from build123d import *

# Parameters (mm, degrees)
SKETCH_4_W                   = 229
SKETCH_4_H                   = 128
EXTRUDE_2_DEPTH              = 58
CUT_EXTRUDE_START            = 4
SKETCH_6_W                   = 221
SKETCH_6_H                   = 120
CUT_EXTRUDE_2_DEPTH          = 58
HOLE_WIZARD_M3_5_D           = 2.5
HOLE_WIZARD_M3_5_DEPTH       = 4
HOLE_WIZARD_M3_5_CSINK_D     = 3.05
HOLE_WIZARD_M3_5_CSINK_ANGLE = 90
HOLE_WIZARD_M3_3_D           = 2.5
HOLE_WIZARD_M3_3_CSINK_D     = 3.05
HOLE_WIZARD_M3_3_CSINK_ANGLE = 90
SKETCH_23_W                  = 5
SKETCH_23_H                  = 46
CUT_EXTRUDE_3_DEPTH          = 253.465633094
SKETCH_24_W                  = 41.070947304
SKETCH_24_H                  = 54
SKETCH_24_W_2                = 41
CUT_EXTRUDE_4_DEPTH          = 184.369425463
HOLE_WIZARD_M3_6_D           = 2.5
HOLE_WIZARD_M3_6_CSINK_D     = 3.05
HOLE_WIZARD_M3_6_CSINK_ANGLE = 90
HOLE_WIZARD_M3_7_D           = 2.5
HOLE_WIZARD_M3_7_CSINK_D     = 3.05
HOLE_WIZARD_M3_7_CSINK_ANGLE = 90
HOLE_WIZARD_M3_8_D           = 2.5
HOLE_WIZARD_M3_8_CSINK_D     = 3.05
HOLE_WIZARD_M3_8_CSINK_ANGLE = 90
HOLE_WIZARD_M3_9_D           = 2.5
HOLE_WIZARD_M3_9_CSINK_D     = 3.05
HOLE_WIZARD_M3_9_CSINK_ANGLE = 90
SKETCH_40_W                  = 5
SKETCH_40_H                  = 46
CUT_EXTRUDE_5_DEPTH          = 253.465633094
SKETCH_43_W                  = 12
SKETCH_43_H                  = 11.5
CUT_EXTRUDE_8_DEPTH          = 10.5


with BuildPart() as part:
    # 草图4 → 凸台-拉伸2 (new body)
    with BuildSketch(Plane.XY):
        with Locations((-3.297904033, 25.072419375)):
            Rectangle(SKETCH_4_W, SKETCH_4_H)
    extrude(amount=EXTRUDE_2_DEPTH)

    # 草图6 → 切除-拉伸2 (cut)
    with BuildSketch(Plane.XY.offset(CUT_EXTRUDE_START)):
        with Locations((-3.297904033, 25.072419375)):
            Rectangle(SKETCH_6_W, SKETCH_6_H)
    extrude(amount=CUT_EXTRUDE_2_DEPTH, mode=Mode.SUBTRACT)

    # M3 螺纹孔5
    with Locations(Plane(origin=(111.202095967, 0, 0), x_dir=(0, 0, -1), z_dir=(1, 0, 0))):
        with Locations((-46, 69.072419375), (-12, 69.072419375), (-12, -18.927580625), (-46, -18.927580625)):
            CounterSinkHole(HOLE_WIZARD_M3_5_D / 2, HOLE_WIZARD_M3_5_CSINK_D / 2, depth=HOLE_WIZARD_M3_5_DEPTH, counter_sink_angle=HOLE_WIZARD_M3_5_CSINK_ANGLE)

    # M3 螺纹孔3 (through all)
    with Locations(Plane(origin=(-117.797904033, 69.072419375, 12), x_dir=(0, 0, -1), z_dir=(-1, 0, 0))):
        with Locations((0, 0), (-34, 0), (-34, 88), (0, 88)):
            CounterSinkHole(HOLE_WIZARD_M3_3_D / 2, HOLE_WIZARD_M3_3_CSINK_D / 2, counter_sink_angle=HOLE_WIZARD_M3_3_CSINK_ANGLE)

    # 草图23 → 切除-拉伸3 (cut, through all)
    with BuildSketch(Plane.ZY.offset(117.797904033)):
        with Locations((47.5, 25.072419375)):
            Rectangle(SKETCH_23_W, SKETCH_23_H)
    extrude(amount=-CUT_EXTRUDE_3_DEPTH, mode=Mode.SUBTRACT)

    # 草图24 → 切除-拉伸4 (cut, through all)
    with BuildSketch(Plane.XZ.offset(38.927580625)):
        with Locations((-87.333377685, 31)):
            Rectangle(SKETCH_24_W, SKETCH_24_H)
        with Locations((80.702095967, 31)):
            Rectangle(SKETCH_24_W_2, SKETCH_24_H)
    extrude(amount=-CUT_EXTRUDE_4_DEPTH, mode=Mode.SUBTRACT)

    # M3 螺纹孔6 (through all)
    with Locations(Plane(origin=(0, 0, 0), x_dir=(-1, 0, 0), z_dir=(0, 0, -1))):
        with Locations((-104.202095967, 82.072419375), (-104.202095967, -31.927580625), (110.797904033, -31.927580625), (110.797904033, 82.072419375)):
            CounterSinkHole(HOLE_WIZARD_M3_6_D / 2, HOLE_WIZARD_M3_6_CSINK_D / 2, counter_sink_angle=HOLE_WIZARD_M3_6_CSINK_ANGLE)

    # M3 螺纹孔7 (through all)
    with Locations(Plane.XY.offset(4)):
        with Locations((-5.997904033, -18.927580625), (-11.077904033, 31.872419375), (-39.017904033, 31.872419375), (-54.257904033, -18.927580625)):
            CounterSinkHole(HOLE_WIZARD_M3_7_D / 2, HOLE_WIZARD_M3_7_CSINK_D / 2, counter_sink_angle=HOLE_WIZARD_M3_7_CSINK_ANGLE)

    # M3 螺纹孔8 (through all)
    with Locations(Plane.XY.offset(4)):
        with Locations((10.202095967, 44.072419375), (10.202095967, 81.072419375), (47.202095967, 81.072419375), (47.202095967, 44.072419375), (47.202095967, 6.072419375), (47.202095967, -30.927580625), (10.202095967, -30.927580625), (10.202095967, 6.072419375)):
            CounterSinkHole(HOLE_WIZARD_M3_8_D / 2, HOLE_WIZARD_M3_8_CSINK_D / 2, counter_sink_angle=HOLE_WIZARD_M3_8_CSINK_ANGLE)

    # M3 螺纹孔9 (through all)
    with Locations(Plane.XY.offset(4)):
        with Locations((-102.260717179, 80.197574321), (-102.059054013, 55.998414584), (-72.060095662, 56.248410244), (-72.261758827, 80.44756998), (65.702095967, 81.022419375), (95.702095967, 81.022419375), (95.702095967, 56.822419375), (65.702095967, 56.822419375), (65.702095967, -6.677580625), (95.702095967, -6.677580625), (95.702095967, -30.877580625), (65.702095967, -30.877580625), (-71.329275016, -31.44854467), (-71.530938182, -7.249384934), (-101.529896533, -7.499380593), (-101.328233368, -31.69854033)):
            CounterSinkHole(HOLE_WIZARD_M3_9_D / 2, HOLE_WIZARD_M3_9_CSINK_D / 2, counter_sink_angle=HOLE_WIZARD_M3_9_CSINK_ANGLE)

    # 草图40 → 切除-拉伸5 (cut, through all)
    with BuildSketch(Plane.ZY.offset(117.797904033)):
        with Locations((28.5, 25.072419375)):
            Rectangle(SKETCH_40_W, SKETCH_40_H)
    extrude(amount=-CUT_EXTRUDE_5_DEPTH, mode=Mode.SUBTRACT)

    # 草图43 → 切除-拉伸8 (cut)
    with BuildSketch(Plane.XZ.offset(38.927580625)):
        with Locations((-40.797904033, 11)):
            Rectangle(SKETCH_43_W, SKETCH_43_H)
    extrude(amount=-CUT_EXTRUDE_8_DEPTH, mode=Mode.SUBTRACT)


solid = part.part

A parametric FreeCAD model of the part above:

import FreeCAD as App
import Part
import Sketcher

V = App.Vector


def add_polygon(sketch, points):
    """Adds a closed chain of lines whose ends are joined by coincident constraints."""
    first, n = sketch.GeometryCount, len(points)
    for a, b in zip(points, points[1:] + points[:1]):
        sketch.addGeometry(Part.LineSegment(App.Vector(*a, 0), App.Vector(*b, 0)), False)
    for i in range(n):
        sketch.addConstraint(Sketcher.Constraint("Coincident", first + i, 2, first + (i + 1) % n, 1))

doc = App.newDocument("Part")
body = doc.addObject("PartDesign::Body", "Body")

# Sketch on XY plane
sketch1 = doc.addObject("Sketcher::SketchObject", "Sketch")
body.addObject(sketch1)
sketch1.AttachmentSupport = (doc.XY_Plane, [""])
sketch1.MapMode = "FlatFace"
add_polygon(sketch1, [(-117.797904, 89.072419), (-117.797904, -38.927581), (111.202096, -38.927581), (111.202096, 89.072419)])  # lines 0-3
sketch1.addConstraint([
    Sketcher.Constraint("Vertical", 0),
    Sketcher.Constraint("Horizontal", 1),
    Sketcher.Constraint("Vertical", 2),
    Sketcher.Constraint("Horizontal", 3),
    Sketcher.Constraint("DistanceX", 1, 1, 1, 2, 229.0),
    Sketcher.Constraint("DistanceY", 0, 2, 0, 1, 128.0),
    Sketcher.Constraint("DistanceY", 0, 2, -1, 1, 38.927581),
    Sketcher.Constraint("DistanceX", 0, 2, -1, 1, 117.797904),
])
pad1 = doc.addObject("PartDesign::Pad", "Pad")
body.addObject(pad1)
pad1.Profile = sketch1
pad1.Length = 58

# Sketch on XY plane
sketch2 = doc.addObject("Sketcher::SketchObject", "Sketch001")
body.addObject(sketch2)
sketch2.AttachmentSupport = (doc.XY_Plane, [""])
sketch2.MapMode = "FlatFace"
sketch2.AttachmentOffset = App.Placement(V(0, 0, 4), App.Rotation())
add_polygon(sketch2, [(-113.797904, 85.072419), (-113.797904, -34.927581), (107.202096, -34.927581), (107.202096, 85.072419)])  # lines 0-3
sketch2.addConstraint([
    Sketcher.Constraint("Vertical", 0),
    Sketcher.Constraint("Horizontal", 1),
    Sketcher.Constraint("Vertical", 2),
    Sketcher.Constraint("Horizontal", 3),
    Sketcher.Constraint("DistanceX", 1, 1, 1, 2, 221.0),
    Sketcher.Constraint("DistanceY", 0, 2, 0, 1, 120.0),
    Sketcher.Constraint("DistanceY", 0, 2, -1, 1, 34.927581),
    Sketcher.Constraint("DistanceX", 0, 2, -1, 1, 113.797904),
])
pocket1 = doc.addObject("PartDesign::Pocket", "Pocket")
body.addObject(pocket1)
pocket1.Profile = sketch2
pocket1.Length = 58
pocket1.Reversed = True

# Sketch on YZ plane
sketch3 = doc.addObject("Sketcher::SketchObject", "Sketch002")
body.addObject(sketch3)
sketch3.AttachmentSupport = (doc.YZ_Plane, [""])
sketch3.MapMode = "FlatFace"
sketch3.AttachmentOffset = App.Placement(V(0, 0, 111.202096), App.Rotation())
sketch3.addGeometry([
    Part.Circle(V(69.072419, 46, 0), V(0, 0, 1), 1.25),
    Part.Circle(V(69.072419, 12, 0), V(0, 0, 1), 1.25),
    Part.Circle(V(-18.927581, 12, 0), V(0, 0, 1), 1.25),
    Part.Circle(V(-18.927581, 46, 0), V(0, 0, 1), 1.25),
], False)
sketch3.addConstraint([
    Sketcher.Constraint("Equal", 0, 1),
    Sketcher.Constraint("Equal", 1, 2),
    Sketcher.Constraint("Equal", 2, 3),
    Sketcher.Constraint("Horizontal", 1, 3, 2, 3),
    Sketcher.Constraint("Horizontal", 0, 3, 3, 3),
    Sketcher.Constraint("Vertical", 0, 3, 1, 3),
    Sketcher.Constraint("Vertical", 2, 3, 3, 3),
    Sketcher.Constraint("Diameter", 0, 2.5),
    Sketcher.Constraint("DistanceY", -1, 1, 0, 3, 46.0),
    Sketcher.Constraint("DistanceY", -1, 1, 1, 3, 12.0),
    Sketcher.Constraint("DistanceX", 2, 3, 1, 3, 88.0),
    Sketcher.Constraint("DistanceX", -1, 1, 0, 3, 69.072419),
])
doc.recompute()
hole = doc.addObject("PartDesign::Hole", "Hole")
body.addObject(hole)
hole.Profile = sketch3
hole.ThreadType = "None"
hole.Diameter = 2.5
hole.DepthType = "Dimension"
hole.Depth = 4
hole.DrillPoint = "Flat"
hole.HoleCutType = "Countersink"
hole.HoleCutDiameter = 3.05
hole.HoleCutCountersinkAngle = 90

# Sketch on YZ plane
sketch4 = doc.addObject("Sketcher::SketchObject", "Sketch003")
body.addObject(sketch4)
sketch4.AttachmentSupport = (doc.YZ_Plane, [""])
sketch4.MapMode = "FlatFace"
sketch4.AttachmentOffset = App.Placement(V(0, 0, -117.797904), App.Rotation())
sketch4.addGeometry([
    Part.Circle(V(69.072419, 12, 0), V(0, 0, 1), 1.25),
    Part.Circle(V(69.072419, 46, 0), V(0, 0, 1), 1.25),
    Part.Circle(V(-18.927581, 46, 0), V(0, 0, 1), 1.25),
    Part.Circle(V(-18.927581, 12, 0), V(0, 0, 1), 1.25),
], False)
sketch4.addConstraint([
    Sketcher.Constraint("Equal", 0, 1),
    Sketcher.Constraint("Equal", 1, 2),
    Sketcher.Constraint("Equal", 2, 3),
    Sketcher.Constraint("Horizontal", 1, 3, 2, 3),
    Sketcher.Constraint("Horizontal", 0, 3, 3, 3),
    Sketcher.Constraint("Vertical", 0, 3, 1, 3),
    Sketcher.Constraint("Vertical", 2, 3, 3, 3),
    Sketcher.Constraint("Diameter", 0, 2.5),
    Sketcher.Constraint("DistanceY", -1, 1, 0, 3, 12.0),
    Sketcher.Constraint("DistanceY", -1, 1, 1, 3, 46.0),
    Sketcher.Constraint("DistanceX", 2, 3, 1, 3, 88.0),
    Sketcher.Constraint("DistanceX", -1, 1, 0, 3, 69.072419),
])
doc.recompute()
hole2 = doc.addObject("PartDesign::Hole", "Hole001")
body.addObject(hole2)
hole2.Profile = sketch4
hole2.ThreadType = "None"
hole2.Diameter = 2.5
hole2.DepthType = "ThroughAll"
hole2.HoleCutType = "Countersink"
hole2.HoleCutDiameter = 3.05
hole2.HoleCutCountersinkAngle = 90
hole2.Reversed = True

# Sketch on YZ plane
sketch5 = doc.addObject("Sketcher::SketchObject", "Sketch004")
body.addObject(sketch5)
sketch5.AttachmentSupport = (doc.YZ_Plane, [""])
sketch5.MapMode = "FlatFace"
sketch5.AttachmentOffset = App.Placement(V(0, 0, -117.797904), App.Rotation())
add_polygon(sketch5, [(48.072419, 45), (2.072419, 45), (2.072419, 50), (48.072419, 50)])  # lines 0-3
sketch5.addConstraint([
    Sketcher.Constraint("Horizontal", 0),
    Sketcher.Constraint("Vertical", 1),
    Sketcher.Constraint("Horizontal", 2),
    Sketcher.Constraint("Vertical", 3),
    Sketcher.Constraint("DistanceX", 0, 2, 0, 1, 46.0),
    Sketcher.Constraint("DistanceY", 1, 1, 1, 2, 5.0),
    Sketcher.Constraint("DistanceY", -1, 1, 0, 2, 45.0),
    Sketcher.Constraint("DistanceX", -1, 1, 0, 2, 2.072419),
])
pocket2 = doc.addObject("PartDesign::Pocket", "Pocket001")
body.addObject(pocket2)
pocket2.Profile = sketch5
pocket2.Type = "ThroughAll"
pocket2.Reversed = True

# Sketch on XZ plane
sketch6 = doc.addObject("Sketcher::SketchObject", "Sketch005")
body.addObject(sketch6)
sketch6.AttachmentSupport = (doc.XZ_Plane, [""])
sketch6.MapMode = "FlatFace"
sketch6.AttachmentOffset = App.Placement(V(0, 0, 38.927581), App.Rotation())
add_polygon(sketch6, [(-107.868851, 58), (-107.868851, 4), (-66.797904, 4), (-66.797904, 58)])  # lines 0-3
add_polygon(sketch6, [(60.202096, 58), (60.202096, 4), (101.202096, 4), (101.202096, 58)])  # lines 4-7
sketch6.addConstraint([
    Sketcher.Constraint("Vertical", 0),
    Sketcher.Constraint("Horizontal", 1),
    Sketcher.Constraint("Vertical", 2),
    Sketcher.Constraint("Horizontal", 3),
    Sketcher.Constraint("Vertical", 4),
    Sketcher.Constraint("Horizontal", 5),
    Sketcher.Constraint("Vertical", 6),
    Sketcher.Constraint("Horizontal", 7),
    Sketcher.Constraint("Horizontal", 1, 2, 4, 2),
    Sketcher.Constraint("Horizontal", 3, 2, 6, 2),
    Sketcher.Constraint("DistanceX", 5, 1, 5, 2, 41.0),
    Sketcher.Constraint("DistanceY", 0, 2, 0, 1, 54.0),
    Sketcher.Constraint("DistanceY", -1, 1, 0, 2, 4.0),
    Sketcher.Constraint("DistanceX", 1, 2, 4, 2, 127.0),
    Sketcher.Constraint("DistanceX", 1, 1, 1, 2, 41.070947),
    Sketcher.Constraint("DistanceX", 0, 2, -1, 1, 107.868851),
])
pocket3 = doc.addObject("PartDesign::Pocket", "Pocket002")
body.addObject(pocket3)
pocket3.Profile = sketch6
pocket3.Type = "ThroughAll"

# Sketch on XY plane
sketch7 = doc.addObject("Sketcher::SketchObject", "Sketch006")
body.addObject(sketch7)
sketch7.AttachmentSupport = (doc.XY_Plane, [""])
sketch7.MapMode = "FlatFace"
sketch7.addGeometry([
    Part.Circle(V(104.202096, 82.072419, 0), V(0, 0, 1), 1.25),
    Part.Circle(V(104.202096, -31.927581, 0), V(0, 0, 1), 1.25),
    Part.Circle(V(-110.797904, -31.927581, 0), V(0, 0, 1), 1.25),
    Part.Circle(V(-110.797904, 82.072419, 0), V(0, 0, 1), 1.25),
], False)
sketch7.addConstraint([
    Sketcher.Constraint("Equal", 0, 1),
    Sketcher.Constraint("Equal", 1, 2),
    Sketcher.Constraint("Equal", 2, 3),
    Sketcher.Constraint("Horizontal", 1, 3, 2, 3),
    Sketcher.Constraint("Horizontal", 0, 3, 3, 3),
    Sketcher.Constraint("Vertical", 0, 3, 1, 3),
    Sketcher.Constraint("Vertical", 2, 3, 3, 3),
    Sketcher.Constraint("Diameter", 0, 2.5),
    Sketcher.Constraint("DistanceY", 1, 3, 0, 3, 114.0),
    Sketcher.Constraint("DistanceX", 2, 3, 1, 3, 215.0),
    Sketcher.Constraint("DistanceY", -1, 1, 0, 3, 82.072419),
    Sketcher.Constraint("DistanceX", -1, 1, 0, 3, 104.202096),
])
doc.recompute()
hole3 = doc.addObject("PartDesign::Hole", "Hole002")
body.addObject(hole3)
hole3.Profile = sketch7
hole3.ThreadType = "None"
hole3.Diameter = 2.5
hole3.DepthType = "ThroughAll"
hole3.HoleCutType = "Countersink"
hole3.HoleCutDiameter = 3.05
hole3.HoleCutCountersinkAngle = 90
hole3.Reversed = True

# Sketch on XY plane
sketch8 = doc.addObject("Sketcher::SketchObject", "Sketch007")
body.addObject(sketch8)
sketch8.AttachmentSupport = (doc.XY_Plane, [""])
sketch8.MapMode = "FlatFace"
sketch8.AttachmentOffset = App.Placement(V(0, 0, 4), App.Rotation())
sketch8.addGeometry([
    Part.Circle(V(-5.997904, -18.927581, 0), V(0, 0, 1), 1.25),
    Part.Circle(V(-11.077904, 31.872419, 0), V(0, 0, 1), 1.25),
    Part.Circle(V(-39.017904, 31.872419, 0), V(0, 0, 1), 1.25),
    Part.Circle(V(-54.257904, -18.927581, 0), V(0, 0, 1), 1.25),
], False)
sketch8.addConstraint([
    Sketcher.Constraint("Equal", 0, 1),
    Sketcher.Constraint("Equal", 1, 2),
    Sketcher.Constraint("Equal", 2, 3),
    Sketcher.Constraint("Horizontal", 1, 3, 2, 3),
    Sketcher.Constraint("Horizontal", 0, 3, 3, 3),
    Sketcher.Constraint("Diameter", 0, 2.5),
    Sketcher.Constraint("DistanceY", 0, 3, 1, 3, 50.8),
    Sketcher.Constraint("DistanceX", 1, 3, 0, 3, 5.08),
    Sketcher.Constraint("DistanceX", 2, 3, 1, 3, 27.94),
    Sketcher.Constraint("DistanceX", 3, 3, 0, 3, 48.26),
    Sketcher.Constraint("DistanceY", 0, 3, -1, 1, 18.927581),
    Sketcher.Constraint("DistanceX", 0, 3, -1, 1, 5.997904),
])
doc.recompute()
hole4 = doc.addObject("PartDesign::Hole", "Hole003")
body.addObject(hole4)
hole4.Profile = sketch8
hole4.ThreadType = "None"
hole4.Diameter = 2.5
hole4.DepthType = "ThroughAll"
hole4.HoleCutType = "Countersink"
hole4.HoleCutDiameter = 3.05
hole4.HoleCutCountersinkAngle = 90

# Sketch on XY plane
sketch9 = doc.addObject("Sketcher::SketchObject", "Sketch008")
body.addObject(sketch9)
sketch9.AttachmentSupport = (doc.XY_Plane, [""])
sketch9.MapMode = "FlatFace"
sketch9.AttachmentOffset = App.Placement(V(0, 0, 4), App.Rotation())
sketch9.addGeometry([
    Part.Circle(V(10.202096, 44.072419, 0), V(0, 0, 1), 1.25),  # 0
    Part.Circle(V(10.202096, 81.072419, 0), V(0, 0, 1), 1.25),  # 1
    Part.Circle(V(47.202096, 81.072419, 0), V(0, 0, 1), 1.25),  # 2
    Part.Circle(V(47.202096, 44.072419, 0), V(0, 0, 1), 1.25),  # 3
    Part.Circle(V(47.202096, 6.072419, 0), V(0, 0, 1), 1.25),  # 4
    Part.Circle(V(47.202096, -30.927581, 0), V(0, 0, 1), 1.25),  # 5
    Part.Circle(V(10.202096, -30.927581, 0), V(0, 0, 1), 1.25),  # 6
    Part.Circle(V(10.202096, 6.072419, 0), V(0, 0, 1), 1.25),  # 7
], False)
sketch9.addConstraint([
    Sketcher.Constraint("Equal", 0, 1),
    Sketcher.Constraint("Equal", 1, 2),
    Sketcher.Constraint("Equal", 2, 3),
    Sketcher.Constraint("Equal", 3, 4),
    Sketcher.Constraint("Equal", 4, 5),
    Sketcher.Constraint("Equal", 5, 6),
    Sketcher.Constraint("Equal", 6, 7),
    Sketcher.Constraint("Horizontal", 1, 3, 2, 3),
    Sketcher.Constraint("Horizontal", 0, 3, 3, 3),
    Sketcher.Constraint("Horizontal", 5, 3, 6, 3),
    Sketcher.Constraint("Horizontal", 4, 3, 7, 3),
    Sketcher.Constraint("Vertical", 0, 3, 1, 3),
    Sketcher.Constraint("Vertical", 2, 3, 3, 3),
    Sketcher.Constraint("Vertical", 3, 3, 4, 3),
    Sketcher.Constraint("Vertical", 4, 3, 5, 3),
    Sketcher.Constraint("Vertical", 1, 3, 6, 3),
    Sketcher.Constraint("Vertical", 6, 3, 7, 3),
    Sketcher.Constraint("Diameter", 0, 2.5),
    Sketcher.Constraint("DistanceY", 0, 3, 1, 3, 37.0),
    Sketcher.Constraint("DistanceX", 1, 3, 2, 3, 37.0),
    Sketcher.Constraint("DistanceY", 4, 3, 3, 3, 38.0),
    Sketcher.Constraint("DistanceY", 5, 3, 4, 3, 37.0),
    Sketcher.Constraint("DistanceY", -1, 1, 0, 3, 44.072419),
    Sketcher.Constraint("DistanceX", -1, 1, 0, 3, 10.202096),
])
doc.recompute()
hole5 = doc.addObject("PartDesign::Hole", "Hole004")
body.addObject(hole5)
hole5.Profile = sketch9
hole5.ThreadType = "None"
hole5.Diameter = 2.5
hole5.DepthType = "ThroughAll"
hole5.HoleCutType = "Countersink"
hole5.HoleCutDiameter = 3.05
hole5.HoleCutCountersinkAngle = 90

# Sketch on XY plane
sketch10 = doc.addObject("Sketcher::SketchObject", "Sketch009")
body.addObject(sketch10)
sketch10.AttachmentSupport = (doc.XY_Plane, [""])
sketch10.MapMode = "FlatFace"
sketch10.AttachmentOffset = App.Placement(V(0, 0, 4), App.Rotation())
sketch10.addGeometry([
    Part.Circle(V(-102.260717, 80.197574, 0), V(0, 0, 1), 1.25),  # 0
    Part.Circle(V(-102.059054, 55.998415, 0), V(0, 0, 1), 1.25),  # 1
    Part.Circle(V(-72.060096, 56.24841, 0), V(0, 0, 1), 1.25),  # 2
    Part.Circle(V(-72.261759, 80.44757, 0), V(0, 0, 1), 1.25),  # 3
    Part.Circle(V(65.702096, 81.022419, 0), V(0, 0, 1), 1.25),  # 4
    Part.Circle(V(95.702096, 81.022419, 0), V(0, 0, 1), 1.25),  # 5
    Part.Circle(V(95.702096, 56.822419, 0), V(0, 0, 1), 1.25),  # 6
    Part.Circle(V(65.702096, 56.822419, 0), V(0, 0, 1), 1.25),  # 7
    Part.Circle(V(65.702096, -6.677581, 0), V(0, 0, 1), 1.25),  # 8
    Part.Circle(V(95.702096, -6.677581, 0), V(0, 0, 1), 1.25),  # 9
    Part.Circle(V(95.702096, -30.877581, 0), V(0, 0, 1), 1.25),  # 10
    Part.Circle(V(65.702096, -30.877581, 0), V(0, 0, 1), 1.25),  # 11
    Part.Circle(V(-71.329275, -31.448545, 0), V(0, 0, 1), 1.25),  # 12
    Part.Circle(V(-71.530938, -7.249385, 0), V(0, 0, 1), 1.25),  # 13
    Part.Circle(V(-101.529897, -7.499381, 0), V(0, 0, 1), 1.25),  # 14
    Part.Circle(V(-101.328233, -31.69854, 0), V(0, 0, 1), 1.25),  # 15
], False)
sketch10.addConstraint([
    Sketcher.Constraint("Equal", 0, 1),
    Sketcher.Constraint("Equal", 1, 2),
    Sketcher.Constraint("Equal", 2, 3),
    Sketcher.Constraint("Equal", 3, 4),
    Sketcher.Constraint("Equal", 4, 5),
    Sketcher.Constraint("Equal", 5, 6),
    Sketcher.Constraint("Equal", 6, 7),
    Sketcher.Constraint("Equal", 7, 8),
    Sketcher.Constraint("Equal", 8, 9),
    Sketcher.Constraint("Equal", 9, 10),
    Sketcher.Constraint("Equal", 10, 11),
    Sketcher.Constraint("Equal", 11, 12),
    Sketcher.Constraint("Equal", 12, 13),
    Sketcher.Constraint("Equal", 13, 14),
    Sketcher.Constraint("Equal", 14, 15),
    Sketcher.Constraint("Horizontal", 4, 3, 5, 3),
    Sketcher.Constraint("Horizontal", 6, 3, 7, 3),
    Sketcher.Constraint("Horizontal", 8, 3, 9, 3),
    Sketcher.Constraint("Horizontal", 10, 3, 11, 3),
    Sketcher.Constraint("Vertical", 5, 3, 6, 3),
    Sketcher.Constraint("Vertical", 4, 3, 7, 3),
    Sketcher.Constraint("Vertical", 7, 3, 8, 3),
    Sketcher.Constraint("Vertical", 6, 3, 9, 3),
    Sketcher.Constraint("Vertical", 9, 3, 10, 3),
    Sketcher.Constraint("Vertical", 8, 3, 11, 3),
    Sketcher.Constraint("Diameter", 0, 2.5),
    Sketcher.Constraint("DistanceX", 4, 3, 5, 3, 30.0),
    Sketcher.Constraint("DistanceY", 6, 3, 5, 3, 24.2),
    Sketcher.Constraint("DistanceY", 8, 3, 7, 3, 63.5),
    Sketcher.Constraint("DistanceY", 10, 3, 9, 3, 24.2),
    Sketcher.Constraint("DistanceY", 13, 3, 1, 3, 63.2478),
    Sketcher.Constraint("DistanceX", 14, 3, 2, 3, 29.469801),
    Sketcher.Constraint("DistanceY", -1, 1, 2, 3, 56.24841),
    Sketcher.Constraint("DistanceX", 3, 3, -1, 1, 72.261759),
    Sketcher.Constraint("DistanceY", -1, 1, 3, 3, 80.44757),
    Sketcher.Constraint("DistanceY", -1, 1, 4, 3, 81.022419),
    Sketcher.Constraint("DistanceX", 13, 3, -1, 1, 71.530938),
    Sketcher.Constraint("DistanceY", 14, 3, -1, 1, 7.499381),
    Sketcher.Constraint("DistanceY", 15, 3, -1, 1, 31.69854),
    Sketcher.Constraint("DistanceY", 1, 3, 0, 3, 24.19916),
    Sketcher.Constraint("DistanceX", 1, 3, 2, 3, 29.998958),
    Sketcher.Constraint("DistanceX", 0, 3, 2, 3, 30.200622),
    Sketcher.Constraint("DistanceX", 0, 3, 3, 3, 29.998958),
    Sketcher.Constraint("DistanceX", 2, 3, 4, 3, 137.762192),
    Sketcher.Constraint("DistanceX", 2, 3, 12, 3, 0.730821),
    Sketcher.Constraint("DistanceY", 12, 3, 1, 3, 87.446959),
    Sketcher.Constraint("DistanceX", 15, 3, 12, 3, 29.998958),
    Sketcher.Constraint("DistanceY", -1, 1, 0, 3, 80.197574),
])
doc.recompute()
hole6 = doc.addObject("PartDesign::Hole", "Hole005")
body.addObject(hole6)
hole6.Profile = sketch10
hole6.ThreadType = "None"
hole6.Diameter = 2.5
hole6.DepthType = "ThroughAll"
hole6.HoleCutType = "Countersink"
hole6.HoleCutDiameter = 3.05
hole6.HoleCutCountersinkAngle = 90

# Sketch on YZ plane
sketch11 = doc.addObject("Sketcher::SketchObject", "Sketch010")
body.addObject(sketch11)
sketch11.AttachmentSupport = (doc.YZ_Plane, [""])
sketch11.MapMode = "FlatFace"
sketch11.AttachmentOffset = App.Placement(V(0, 0, -117.797904), App.Rotation())
add_polygon(sketch11, [(48.072419, 26), (2.072419, 26), (2.072419, 31), (48.072419, 31)])  # lines 0-3
sketch11.addConstraint([
    Sketcher.Constraint("Horizontal", 0),
    Sketcher.Constraint("Vertical", 1),
    Sketcher.Constraint("Horizontal", 2),
    Sketcher.Constraint("Vertical", 3),
    Sketcher.Constraint("DistanceX", 0, 2, 0, 1, 46.0),
    Sketcher.Constraint("DistanceY", 1, 1, 1, 2, 5.0),
    Sketcher.Constraint("DistanceY", -1, 1, 0, 2, 26.0),
    Sketcher.Constraint("DistanceX", -1, 1, 0, 2, 2.072419),
])
pocket4 = doc.addObject("PartDesign::Pocket", "Pocket003")
body.addObject(pocket4)
pocket4.Profile = sketch11
pocket4.Type = "ThroughAll"
pocket4.Reversed = True

# Sketch on XZ plane
sketch12 = doc.addObject("Sketcher::SketchObject", "Sketch011")
body.addObject(sketch12)
sketch12.AttachmentSupport = (doc.XZ_Plane, [""])
sketch12.MapMode = "FlatFace"
sketch12.AttachmentOffset = App.Placement(V(0, 0, 38.927581), App.Rotation())
add_polygon(sketch12, [(-46.797904, 16.75), (-46.797904, 5.25), (-34.797904, 5.25), (-34.797904, 16.75)])  # lines 0-3
sketch12.addConstraint([
    Sketcher.Constraint("Vertical", 0),
    Sketcher.Constraint("Horizontal", 1),
    Sketcher.Constraint("Vertical", 2),
    Sketcher.Constraint("Horizontal", 3),
    Sketcher.Constraint("DistanceX", 1, 1, 1, 2, 12.0),
    Sketcher.Constraint("DistanceY", 0, 2, 0, 1, 11.5),
    Sketcher.Constraint("DistanceY", -1, 1, 0, 2, 5.25),
    Sketcher.Constraint("DistanceX", 0, 2, -1, 1, 46.797904),
])
pocket5 = doc.addObject("PartDesign::Pocket", "Pocket004")
body.addObject(pocket5)
pocket5.Profile = sketch12
pocket5.Length = 10.5

doc.recompute()
